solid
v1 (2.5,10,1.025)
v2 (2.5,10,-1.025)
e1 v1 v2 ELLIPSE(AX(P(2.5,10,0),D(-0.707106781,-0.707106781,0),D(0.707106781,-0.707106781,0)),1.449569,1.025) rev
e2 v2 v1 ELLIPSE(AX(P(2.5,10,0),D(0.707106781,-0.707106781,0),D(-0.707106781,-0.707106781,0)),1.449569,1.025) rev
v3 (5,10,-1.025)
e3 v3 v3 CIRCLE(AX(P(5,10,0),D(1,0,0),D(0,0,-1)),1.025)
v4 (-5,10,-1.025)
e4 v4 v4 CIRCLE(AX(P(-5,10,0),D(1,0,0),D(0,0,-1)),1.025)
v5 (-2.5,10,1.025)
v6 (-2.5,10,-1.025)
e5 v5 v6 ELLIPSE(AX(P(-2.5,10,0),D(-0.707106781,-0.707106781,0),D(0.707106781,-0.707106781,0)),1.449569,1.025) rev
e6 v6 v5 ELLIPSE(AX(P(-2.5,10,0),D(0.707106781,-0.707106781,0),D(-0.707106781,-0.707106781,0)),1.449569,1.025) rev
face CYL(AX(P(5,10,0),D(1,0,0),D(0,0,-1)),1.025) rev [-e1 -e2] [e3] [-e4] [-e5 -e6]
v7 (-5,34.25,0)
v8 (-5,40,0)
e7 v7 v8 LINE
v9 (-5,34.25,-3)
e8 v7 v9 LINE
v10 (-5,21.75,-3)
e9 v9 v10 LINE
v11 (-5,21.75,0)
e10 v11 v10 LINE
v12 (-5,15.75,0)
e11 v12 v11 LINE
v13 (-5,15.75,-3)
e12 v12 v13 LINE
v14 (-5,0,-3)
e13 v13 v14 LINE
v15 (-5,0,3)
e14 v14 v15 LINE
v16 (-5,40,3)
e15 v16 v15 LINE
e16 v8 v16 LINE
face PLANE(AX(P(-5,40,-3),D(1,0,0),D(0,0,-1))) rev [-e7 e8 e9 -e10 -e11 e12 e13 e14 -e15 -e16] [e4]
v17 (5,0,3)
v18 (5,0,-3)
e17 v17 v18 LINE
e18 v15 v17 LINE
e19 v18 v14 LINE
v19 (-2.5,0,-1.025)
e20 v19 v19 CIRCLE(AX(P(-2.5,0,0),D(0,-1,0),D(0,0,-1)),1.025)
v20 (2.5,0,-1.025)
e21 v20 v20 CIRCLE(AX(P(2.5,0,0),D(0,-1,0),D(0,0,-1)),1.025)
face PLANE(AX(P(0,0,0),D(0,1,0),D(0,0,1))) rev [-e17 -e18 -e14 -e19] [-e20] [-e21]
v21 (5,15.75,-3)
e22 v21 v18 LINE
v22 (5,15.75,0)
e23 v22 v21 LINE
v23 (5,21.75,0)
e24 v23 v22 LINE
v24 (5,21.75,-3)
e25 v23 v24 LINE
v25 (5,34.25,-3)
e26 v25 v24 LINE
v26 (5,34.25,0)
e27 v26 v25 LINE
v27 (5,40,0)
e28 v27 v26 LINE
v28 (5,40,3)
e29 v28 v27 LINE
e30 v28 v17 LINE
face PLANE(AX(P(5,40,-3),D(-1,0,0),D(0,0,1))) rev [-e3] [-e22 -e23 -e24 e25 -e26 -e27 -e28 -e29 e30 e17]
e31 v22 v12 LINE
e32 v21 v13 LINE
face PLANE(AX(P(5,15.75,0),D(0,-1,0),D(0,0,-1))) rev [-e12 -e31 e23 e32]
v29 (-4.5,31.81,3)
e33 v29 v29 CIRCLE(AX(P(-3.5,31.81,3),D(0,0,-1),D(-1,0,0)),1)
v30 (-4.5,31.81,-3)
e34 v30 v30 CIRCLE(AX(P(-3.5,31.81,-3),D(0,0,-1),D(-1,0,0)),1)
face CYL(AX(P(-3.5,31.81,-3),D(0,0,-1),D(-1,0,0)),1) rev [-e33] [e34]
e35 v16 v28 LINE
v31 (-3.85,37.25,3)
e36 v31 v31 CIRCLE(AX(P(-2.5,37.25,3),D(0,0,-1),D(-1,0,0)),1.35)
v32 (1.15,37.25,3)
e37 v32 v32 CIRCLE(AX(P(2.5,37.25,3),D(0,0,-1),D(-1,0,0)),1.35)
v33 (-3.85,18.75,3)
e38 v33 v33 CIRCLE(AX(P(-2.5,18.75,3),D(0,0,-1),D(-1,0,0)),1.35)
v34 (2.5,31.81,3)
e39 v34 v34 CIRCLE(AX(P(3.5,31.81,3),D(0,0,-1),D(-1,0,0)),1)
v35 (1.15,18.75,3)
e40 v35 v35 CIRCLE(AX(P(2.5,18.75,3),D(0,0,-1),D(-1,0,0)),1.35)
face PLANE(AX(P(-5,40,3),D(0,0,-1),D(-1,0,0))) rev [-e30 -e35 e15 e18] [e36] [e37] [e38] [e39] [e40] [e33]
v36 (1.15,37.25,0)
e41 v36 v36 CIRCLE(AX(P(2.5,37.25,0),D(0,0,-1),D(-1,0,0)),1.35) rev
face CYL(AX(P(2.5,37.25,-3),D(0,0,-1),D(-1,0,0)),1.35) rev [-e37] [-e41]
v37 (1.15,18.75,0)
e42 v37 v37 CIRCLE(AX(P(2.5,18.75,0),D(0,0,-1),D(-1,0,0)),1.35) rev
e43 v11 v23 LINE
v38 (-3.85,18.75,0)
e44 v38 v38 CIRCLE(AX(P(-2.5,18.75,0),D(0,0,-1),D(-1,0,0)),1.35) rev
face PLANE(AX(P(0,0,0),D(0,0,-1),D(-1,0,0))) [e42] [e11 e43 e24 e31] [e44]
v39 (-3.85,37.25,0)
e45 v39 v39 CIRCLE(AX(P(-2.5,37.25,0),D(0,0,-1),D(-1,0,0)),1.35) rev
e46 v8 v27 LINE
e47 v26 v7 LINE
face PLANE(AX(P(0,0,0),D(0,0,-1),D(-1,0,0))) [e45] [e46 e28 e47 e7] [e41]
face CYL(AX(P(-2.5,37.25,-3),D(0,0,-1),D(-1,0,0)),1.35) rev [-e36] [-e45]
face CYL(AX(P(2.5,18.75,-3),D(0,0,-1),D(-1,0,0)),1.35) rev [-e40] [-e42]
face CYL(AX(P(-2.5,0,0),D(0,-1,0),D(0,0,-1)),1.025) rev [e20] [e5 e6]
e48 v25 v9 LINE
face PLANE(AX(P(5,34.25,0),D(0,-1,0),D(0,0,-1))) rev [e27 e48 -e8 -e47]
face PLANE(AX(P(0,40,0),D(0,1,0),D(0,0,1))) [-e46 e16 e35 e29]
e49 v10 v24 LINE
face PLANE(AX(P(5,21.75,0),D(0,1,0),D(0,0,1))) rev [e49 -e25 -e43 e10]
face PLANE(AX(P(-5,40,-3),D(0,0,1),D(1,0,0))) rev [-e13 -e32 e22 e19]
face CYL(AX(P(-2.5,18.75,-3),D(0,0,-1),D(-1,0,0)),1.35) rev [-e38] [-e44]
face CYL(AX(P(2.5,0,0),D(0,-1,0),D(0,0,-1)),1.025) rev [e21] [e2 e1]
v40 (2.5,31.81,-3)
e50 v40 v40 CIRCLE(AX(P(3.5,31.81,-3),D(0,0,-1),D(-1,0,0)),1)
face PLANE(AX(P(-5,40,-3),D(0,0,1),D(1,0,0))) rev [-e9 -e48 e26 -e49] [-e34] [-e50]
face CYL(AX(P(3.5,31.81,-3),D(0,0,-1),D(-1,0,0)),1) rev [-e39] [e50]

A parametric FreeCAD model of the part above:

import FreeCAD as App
import Part
import Sketcher

V = App.Vector


def add_polygon(sketch, points):
    """Adds a closed chain of lines whose ends are joined by coincident constraints."""
    first, n = sketch.GeometryCount, len(points)
    for a, b in zip(points, points[1:] + points[:1]):
        sketch.addGeometry(Part.LineSegment(App.Vector(*a, 0), App.Vector(*b, 0)), False)
    for i in range(n):
        sketch.addConstraint(Sketcher.Constraint("Coincident", first + i, 2, first + (i + 1) % n, 1))

doc = App.newDocument("Part")
params = doc.addObject("Spreadsheet::Sheet", "Params")
for row, (alias, value) in enumerate([
    ("sketch1_width", "10 mm"),
    ("sketch1_height", "6 mm"),
    ("pad1_length", "40 mm"),
    ("sketch2_diameter", "2.05 mm"),
    ("hole_diameter", "2.05 mm"),
    ("hole_depth", "10 mm"),
    ("sketch3_diameter", "2.7 mm"),
    ("hole2_diameter", "2.7 mm"),
    ("sketch4_diameter", "2 mm"),
    ("hole3_diameter", "2 mm"),
    ("sketch5_diameter", "2.05 mm"),
    ("hole4_diameter", "2.05 mm"),
    ("sketch6_width", "10 mm"),
    ("sketch6_height", "6 mm"),
    ("sketch6_height2", "5.75 mm"),
    ("pocket1_length", "3 mm"),
], start=1):
    params.set(f"A{row}", alias)
    params.set(f"B{row}", "=" + value)
    params.setAlias(f"B{row}", alias)

body = doc.addObject("PartDesign::Body", "Body")

# Sketch on XZ plane
sketch1 = body.newObject("Sketcher::SketchObject", "Sketch")
sketch1.AttachmentSupport = (doc.getObject("XZ_Plane"), [""])
sketch1.MapMode = "FlatFace"
add_polygon(sketch1, [(-5, -3), (-5, 3), (5, 3), (5, -3)])  # lines 0-3
sketch1.addConstraint([
    Sketcher.Constraint("Vertical", 0),
    Sketcher.Constraint("Horizontal", 1),
    Sketcher.Constraint("Vertical", 2),
    Sketcher.Constraint("Horizontal", 3),
    Sketcher.Constraint("Symmetric", 0, 2, 2, 2, -1, 1),
    Sketcher.Constraint("DistanceX", 1, 1, 1, 2, 10.0),
    Sketcher.Constraint("DistanceY", 0, 1, 0, 2, 6.0),
])
sketch1.setExpression("Constraints[9]", "Params.sketch1_width")
sketch1.setExpression("Constraints[10]", "Params.sketch1_height")
pad1 = body.newObject("PartDesign::Pad", "Pad")
pad1.Profile = sketch1
pad1.setExpression("Length", "Params.pad1_length")
pad1.Reversed = True

# Sketch on XZ plane
sketch2 = body.newObject("Sketcher::SketchObject", "Sketch001")
sketch2.AttachmentSupport = (doc.getObject("XZ_Plane"), [""])
sketch2.MapMode = "FlatFace"
sketch2.addGeometry([
    Part.Circle(V(-2.5, 0, 0), V(0, 0, 1), 1),
    Part.Circle(V(2.5, 0, 0), V(0, 0, 1), 1),
], False)
sketch2.addConstraint([
    Sketcher.Constraint("Equal", 0, 1),
    Sketcher.Constraint("Symmetric", 0, 3, 1, 3, -1, 1),
    Sketcher.Constraint("PointOnObject", 0, 3, -1),
    Sketcher.Constraint("Diameter", 0, 2.05),
    Sketcher.Constraint("DistanceX", 0, 3, 1, 3, 5.0),
])
sketch2.setExpression("Constraints[3]", "Params.sketch2_diameter")
doc.recompute()
hole = body.newObject("PartDesign::Hole", "Hole")
hole.Profile = sketch2
hole.ThreadType = "None"
hole.setExpression("Diameter", "Params.hole_diameter")
hole.DepthType = "Dimension"
hole.setExpression("Depth", "Params.hole_depth")
hole.DrillPoint = "Angled"
hole.DrillPointAngle = 118

# Sketch on XY plane
sketch3 = body.newObject("Sketcher::SketchObject", "Sketch002")
sketch3.AttachmentSupport = (doc.getObject("XY_Plane"), [""])
sketch3.MapMode = "FlatFace"
sketch3.AttachmentOffset = App.Placement(V(0, 0, -3), App.Rotation())
sketch3.addGeometry([
    Part.Circle(V(2.5, 37.2, 0), V(0, 0, 1), 1.4),
    Part.Circle(V(-2.5, 37.2, 0), V(0, 0, 1), 1.4),
    Part.Circle(V(2.5, 18.8, 0), V(0, 0, 1), 1.4),
    Part.Circle(V(-2.5, 18.8, 0), V(0, 0, 1), 1.4),
], False)
sketch3.addConstraint([
    Sketcher.Constraint("Equal", 0, 1),
    Sketcher.Constraint("Equal", 1, 2),
    Sketcher.Constraint("Equal", 2, 3),
    Sketcher.Constraint("Symmetric", 0, 3, 1, 3, -2),
    Sketcher.Constraint("Symmetric", 2, 3, 3, 3, -2),
    Sketcher.Constraint("Vertical", 0, 3, 2, 3),
    Sketcher.Constraint("Diameter", 0, 2.7),
    Sketcher.Constraint("DistanceX", 1, 3, 0, 3, 5.0),
    Sketcher.Constraint("DistanceY", 2, 3, 0, 3, 18.5),
    Sketcher.Constraint("DistanceY", -1, 1, 0, 3, 37.25),
])
sketch3.setExpression("Constraints[6]", "Params.sketch3_diameter")
doc.recompute()
hole2 = body.newObject("PartDesign::Hole", "Hole001")
hole2.Profile = sketch3
hole2.ThreadType = "None"
hole2.setExpression("Diameter", "Params.hole2_diameter")
hole2.DepthType = "ThroughAll"
hole2.Reversed = True

# Sketch on XY plane
sketch4 = body.newObject("Sketcher::SketchObject", "Sketch003")
sketch4.AttachmentSupport = (doc.getObject("XY_Plane"), [""])
sketch4.MapMode = "FlatFace"
sketch4.AttachmentOffset = App.Placement(V(0, 0, -3), App.Rotation())
sketch4.addGeometry(Part.Circle(V(-3.5, 31.8, 0), V(0, 0, 1), 1), False)
sketch4.addConstraint([
    Sketcher.Constraint("Diameter", 0, 2.0),
    Sketcher.Constraint("DistanceX", 0, 3, -1, 1, 3.5),
    Sketcher.Constraint("DistanceY", -1, 1, 0, 3, 31.81),
])
sketch4.setExpression("Constraints[0]", "Params.sketch4_diameter")
doc.recompute()
hole3 = body.newObject("PartDesign::Hole", "Hole002")
hole3.Profile = sketch4
hole3.ThreadType = "None"
hole3.setExpression("Diameter", "Params.hole3_diameter")
hole3.DepthType = "ThroughAll"
hole3.Reversed = True
doc.recompute()

mirrored = body.newObject("PartDesign::Mirrored", "Mirrored")
mirrored.Originals = [hole3]
mirrored.MirrorPlane = (doc.getObject("YZ_Plane"), [""])
body.Tip = mirrored

# Sketch on YZ plane
sketch5 = body.newObject("Sketcher::SketchObject", "Sketch004")
sketch5.AttachmentSupport = (doc.getObject("YZ_Plane"), [""])
sketch5.MapMode = "FlatFace"
sketch5.AttachmentOffset = App.Placement(V(0, 0, 5), App.Rotation())
sketch5.addGeometry(Part.Circle(V(10, 0, 0), V(0, 0, 1), 1), False)
sketch5.addConstraint([
    Sketcher.Constraint("PointOnObject", 0, 3, -1),
    Sketcher.Constraint("Diameter", 0, 2.05),
    Sketcher.Constraint("DistanceX", -1, 1, 0, 3, 10.0),
])
sketch5.setExpression("Constraints[1]", "Params.sketch5_diameter")
doc.recompute()
hole4 = body.newObject("PartDesign::Hole", "Hole003")
hole4.Profile = sketch5
hole4.ThreadType = "None"
hole4.setExpression("Diameter", "Params.hole4_diameter")
hole4.DepthType = "ThroughAll"

# Sketch on XY plane
sketch6 = body.newObject("Sketcher::SketchObject", "Sketch005")
sketch6.AttachmentSupport = (doc.getObject("XY_Plane"), [""])
sketch6.MapMode = "FlatFace"
sketch6.AttachmentOffset = App.Placement(V(0, 0, -3), App.Rotation())
add_polygon(sketch6, [(5, 22), (5, 16), (-5, 16), (-5, 22)])  # lines 0-3
add_polygon(sketch6, [(5, 40), (5, 34), (-5, 34), (-5, 40)])  # lines 4-7
sketch6.addConstraint([
    Sketcher.Constraint("Vertical", 0),
    Sketcher.Constraint("Horizontal", 1),
    Sketcher.Constraint("Vertical", 2),
    Sketcher.Constraint("Horizontal", 3),
    Sketcher.Constraint("Vertical", 4),
    Sketcher.Constraint("Horizontal", 5),
    Sketcher.Constraint("Vertical", 6),
    Sketcher.Constraint("Horizontal", 7),
    Sketcher.Constraint("Vertical", 3, 2, 4, 2),
    Sketcher.Constraint("Vertical", 2, 2, 5, 2),
    Sketcher.Constraint("DistanceX", 1, 2, 1, 1, 10.0),
    Sketcher.Constraint("DistanceY", 0, 2, 0, 1, 6.0),
    Sketcher.Constraint("DistanceX", -1, 1, 0, 2, 5.0),
    Sketcher.Constraint("DistanceY", -1, 1, 6, 2, 40.0),
    Sketcher.Constraint("DistanceY", 4, 2, 4, 1, 5.75),
    Sketcher.Constraint("DistanceY", 3, 2, 4, 2, 12.5),
])
sketch6.setExpression("Constraints[18]", "Params.sketch6_width")
sketch6.setExpression("Constraints[19]", "Params.sketch6_height")
sketch6.setExpression("Constraints[22]", "Params.sketch6_height2")
pocket1 = body.newObject("PartDesign::Pocket", "Pocket")
pocket1.Profile = sketch6
pocket1.setExpression("Length", "Params.pocket1_length")
pocket1.Reversed = True

doc.recompute()
